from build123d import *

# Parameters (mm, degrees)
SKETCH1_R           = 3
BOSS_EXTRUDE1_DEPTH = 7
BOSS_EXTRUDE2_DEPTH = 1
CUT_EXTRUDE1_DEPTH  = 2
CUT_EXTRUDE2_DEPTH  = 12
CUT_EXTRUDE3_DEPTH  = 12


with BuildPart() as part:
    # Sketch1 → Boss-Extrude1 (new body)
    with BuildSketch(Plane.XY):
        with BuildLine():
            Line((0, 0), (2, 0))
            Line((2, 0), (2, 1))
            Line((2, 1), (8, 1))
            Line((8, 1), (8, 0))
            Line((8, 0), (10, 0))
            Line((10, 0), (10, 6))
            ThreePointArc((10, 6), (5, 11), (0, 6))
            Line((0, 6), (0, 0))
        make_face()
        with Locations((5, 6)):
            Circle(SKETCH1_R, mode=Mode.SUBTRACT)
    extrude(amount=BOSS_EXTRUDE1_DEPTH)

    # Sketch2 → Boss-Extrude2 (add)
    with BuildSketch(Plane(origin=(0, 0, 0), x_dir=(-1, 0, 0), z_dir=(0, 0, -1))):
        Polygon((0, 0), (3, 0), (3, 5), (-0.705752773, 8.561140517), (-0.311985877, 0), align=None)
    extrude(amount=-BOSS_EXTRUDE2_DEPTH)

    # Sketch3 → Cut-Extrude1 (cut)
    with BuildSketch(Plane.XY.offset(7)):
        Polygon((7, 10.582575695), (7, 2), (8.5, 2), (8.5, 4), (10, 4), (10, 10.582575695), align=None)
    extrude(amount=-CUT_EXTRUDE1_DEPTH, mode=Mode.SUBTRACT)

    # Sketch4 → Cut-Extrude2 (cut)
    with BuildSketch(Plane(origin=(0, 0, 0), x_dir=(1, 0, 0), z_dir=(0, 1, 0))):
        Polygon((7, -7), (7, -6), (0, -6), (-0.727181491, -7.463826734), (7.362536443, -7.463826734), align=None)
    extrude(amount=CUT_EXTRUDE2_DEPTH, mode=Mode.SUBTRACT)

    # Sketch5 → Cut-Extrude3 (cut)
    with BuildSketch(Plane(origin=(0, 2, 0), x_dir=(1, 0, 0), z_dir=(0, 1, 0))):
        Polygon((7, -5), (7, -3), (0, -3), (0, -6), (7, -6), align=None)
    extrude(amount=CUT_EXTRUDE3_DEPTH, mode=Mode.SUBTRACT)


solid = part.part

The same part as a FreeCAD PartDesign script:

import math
import FreeCAD as App
import Part
import Sketcher

V = App.Vector


def add_polygon(sketch, points):
    """Adds a closed chain of lines whose ends are joined by coincident constraints."""
    first, n = sketch.GeometryCount, len(points)
    for a, b in zip(points, points[1:] + points[:1]):
        sketch.addGeometry(Part.LineSegment(App.Vector(*a, 0), App.Vector(*b, 0)), False)
    for i in range(n):
        sketch.addConstraint(Sketcher.Constraint("Coincident", first + i, 2, first + (i + 1) % n, 1))

doc = App.newDocument("Part")
body = doc.addObject("PartDesign::Body", "Body")

# Sketch on XY plane
sketch1 = doc.addObject("Sketcher::SketchObject", "Sketch")
body.addObject(sketch1)
sketch1.AttachmentSupport = (doc.XY_Plane, [""])
sketch1.MapMode = "FlatFace"
sketch1.addGeometry(Part.LineSegment(V(0, 0, 0), V(2, 0, 0)), False)
sketch1.addGeometry(Part.LineSegment(V(2, 0, 0), V(2, 1, 0)), False)
sketch1.addGeometry(Part.LineSegment(V(2, 1, 0), V(8, 1, 0)), False)
sketch1.addGeometry(Part.LineSegment(V(8, 1, 0), V(8, 0, 0)), False)
sketch1.addGeometry(Part.LineSegment(V(8, 0, 0), V(10, 0, 0)), False)
sketch1.addGeometry(Part.LineSegment(V(10, 0, 0), V(10, 6, 0)), False)
sketch1.addGeometry(Part.ArcOfCircle(Part.Circle(V(5, 6, 0), V(0, 0, 1), 5), math.radians(0), math.radians(180)), False)
sketch1.addGeometry(Part.LineSegment(V(0, 6, 0), V(0, 0, 0)), False)
sketch1.addGeometry(Part.Circle(V(5, 6, 0), V(0, 0, 1), 3), False)
sketch1.addConstraint(Sketcher.Constraint("Coincident", 0, 2, 1, 1))
sketch1.addConstraint(Sketcher.Constraint("Coincident", 1, 2, 2, 1))
sketch1.addConstraint(Sketcher.Constraint("Coincident", 2, 2, 3, 1))
sketch1.addConstraint(Sketcher.Constraint("Coincident", 3, 2, 4, 1))
sketch1.addConstraint(Sketcher.Constraint("Coincident", 4, 2, 5, 1))
sketch1.addConstraint(Sketcher.Constraint("Tangent", 5, 2, 6, 1))
sketch1.addConstraint(Sketcher.Constraint("Tangent", 6, 2, 7, 1))
sketch1.addConstraint(Sketcher.Constraint("Coincident", 7, 2, 0, 1))
sketch1.addConstraint(Sketcher.Constraint("Horizontal", 0))
sketch1.addConstraint(Sketcher.Constraint("Vertical", 1))
sketch1.addConstraint(Sketcher.Constraint("Horizontal", 2))
sketch1.addConstraint(Sketcher.Constraint("Vertical", 3))
sketch1.addConstraint(Sketcher.Constraint("Horizontal", 4))
sketch1.addConstraint(Sketcher.Constraint("Vertical", 5))
sketch1.addConstraint(Sketcher.Constraint("Vertical", 7))
sketch1.addConstraint(Sketcher.Constraint("Coincident", 7, 2, -1, 1))
sketch1.addConstraint(Sketcher.Constraint("Coincident", 8, 3, 6, 3))
sketch1.addConstraint(Sketcher.Constraint("PointOnObject", 3, 2, -1))
sketch1.addConstraint(Sketcher.Constraint("Equal", 0, 4))
sketch1.addConstraint(Sketcher.Constraint("Equal", 2, 5))
sketch1.addConstraint(Sketcher.Constraint("Diameter", 8, 6.0))
sketch1.addConstraint(Sketcher.Constraint("Radius", 6, 5.0))
sketch1.addConstraint(Sketcher.Constraint("DistanceX", 0, 1, 0, 2, 2.0))
sketch1.addConstraint(Sketcher.Constraint("DistanceY", 1, 1, 1, 2, 1.0))
pad1 = doc.addObject("PartDesign::Pad", "Pad")
body.addObject(pad1)
pad1.Profile = sketch1
pad1.Length = 7

# Sketch on XY plane
sketch2 = doc.addObject("Sketcher::SketchObject", "Sketch001")
body.addObject(sketch2)
sketch2.AttachmentSupport = (doc.XY_Plane, [""])
sketch2.MapMode = "FlatFace"
add_polygon(sketch2, [(-3, 0), (-3, 5), (0.7, 8.6), (0.3, 0)])  # lines 0-3
sketch2.addConstraint(Sketcher.Constraint("Vertical", 0))
sketch2.addConstraint(Sketcher.Constraint("Horizontal", 3))
sketch2.addConstraint(Sketcher.Constraint("PointOnObject", 2, 2, -1))
sketch2.addConstraint(Sketcher.Constraint("DistanceY", 0, 1, 0, 2, 5.0))
sketch2.addConstraint(Sketcher.Constraint("DistanceX", 0, 2, -1, 1, 3.0))
sketch2.addConstraint(Sketcher.Constraint("Distance", 2, 8.570191))
sketch2.addConstraint(Sketcher.Constraint("DistanceX", 3, 2, 3, 1, 3.311986))
sketch2.addConstraint(Sketcher.Constraint("DistanceY", -1, 1, 1, 2, 8.561141))
pad2 = doc.addObject("PartDesign::Pad", "Pad001")
body.addObject(pad2)
pad2.Profile = sketch2
pad2.Length = 1

# Sketch on XY plane
sketch3 = doc.addObject("Sketcher::SketchObject", "Sketch002")
body.addObject(sketch3)
sketch3.AttachmentSupport = (doc.XY_Plane, [""])
sketch3.MapMode = "FlatFace"
sketch3.AttachmentOffset = App.Placement(V(0, 0, 7), App.Rotation())
add_polygon(sketch3, [(7, 10.6), (7, 2), (8.5, 2), (8.5, 4), (10, 4), (10, 10.6)])  # lines 0-5
sketch3.addConstraint(Sketcher.Constraint("Vertical", 0))
sketch3.addConstraint(Sketcher.Constraint("Horizontal", 1))
sketch3.addConstraint(Sketcher.Constraint("Vertical", 2))
sketch3.addConstraint(Sketcher.Constraint("Horizontal", 3))
sketch3.addConstraint(Sketcher.Constraint("Vertical", 4))
sketch3.addConstraint(Sketcher.Constraint("Horizontal", 5))
sketch3.addConstraint(Sketcher.Constraint("Equal", 1, 3))
sketch3.addConstraint(Sketcher.Constraint("DistanceX", 5, 2, 5, 1, 3.0))
sketch3.addConstraint(Sketcher.Constraint("DistanceY", 2, 1, 2, 2, 2.0))
sketch3.addConstraint(Sketcher.Constraint("DistanceX", -1, 1, 0, 2, 7.0))
sketch3.addConstraint(Sketcher.Constraint("DistanceY", -1, 1, 0, 2, 2.0))
sketch3.addConstraint(Sketcher.Constraint("DistanceY", 0, 2, 0, 1, 8.582576))
pocket1 = doc.addObject("PartDesign::Pocket", "Pocket")
body.addObject(pocket1)
pocket1.Profile = sketch3
pocket1.Length = 2

# Sketch on XZ plane
sketch4 = doc.addObject("Sketcher::SketchObject", "Sketch003")
body.addObject(sketch4)
sketch4.AttachmentSupport = (doc.XZ_Plane, [""])
sketch4.MapMode = "FlatFace"
add_polygon(sketch4, [(7, 7), (7, 6), (0, 6), (-0.7, 7.5), (7.4, 7.5)])  # lines 0-4
sketch4.addConstraint(Sketcher.Constraint("Vertical", 0))
sketch4.addConstraint(Sketcher.Constraint("Horizontal", 1))
sketch4.addConstraint(Sketcher.Constraint("Horizontal", 3))
sketch4.addConstraint(Sketcher.Constraint("PointOnObject", 1, 2, -2))
sketch4.addConstraint(Sketcher.Constraint("DistanceX", 1, 2, 1, 1, 7.0))
sketch4.addConstraint(Sketcher.Constraint("DistanceY", 0, 2, 0, 1, 1.0))
sketch4.addConstraint(Sketcher.Constraint("DistanceY", -1, 1, 0, 2, 6.0))
sketch4.addConstraint(Sketcher.Constraint("Distance", 4, 0.5887))
sketch4.addConstraint(Sketcher.Constraint("DistanceX", 3, 1, 3, 2, 8.089718))
sketch4.addConstraint(Sketcher.Constraint("DistanceX", 2, 2, -1, 1, 0.727181))
pocket2 = doc.addObject("PartDesign::Pocket", "Pocket001")
body.addObject(pocket2)
pocket2.Profile = sketch4
pocket2.Length = 12

# Sketch on XZ plane
sketch5 = doc.addObject("Sketcher::SketchObject", "Sketch004")
body.addObject(sketch5)
sketch5.AttachmentSupport = (doc.XZ_Plane, [""])
sketch5.MapMode = "FlatFace"
sketch5.AttachmentOffset = App.Placement(V(0, 0, -2), App.Rotation())
add_polygon(sketch5, [(7, 3), (0, 3), (0, 6), (7, 6)])  # lines 0-3
sketch5.addConstraint(Sketcher.Constraint("Horizontal", 0))
sketch5.addConstraint(Sketcher.Constraint("Vertical", 1))
sketch5.addConstraint(Sketcher.Constraint("Horizontal", 2))
sketch5.addConstraint(Sketcher.Constraint("Vertical", 3))
sketch5.addConstraint(Sketcher.Constraint("PointOnObject", 0, 2, -2))
sketch5.addConstraint(Sketcher.Constraint("DistanceX", 0, 2, 0, 1, 7.0))
sketch5.addConstraint(Sketcher.Constraint("DistanceY", 1, 1, 1, 2, 3.0))
sketch5.addConstraint(Sketcher.Constraint("DistanceY", -1, 1, 0, 2, 3.0))
pocket3 = doc.addObject("PartDesign::Pocket", "Pocket002")
body.addObject(pocket3)
pocket3.Profile = sketch5
pocket3.Length = 12

doc.recompute()
